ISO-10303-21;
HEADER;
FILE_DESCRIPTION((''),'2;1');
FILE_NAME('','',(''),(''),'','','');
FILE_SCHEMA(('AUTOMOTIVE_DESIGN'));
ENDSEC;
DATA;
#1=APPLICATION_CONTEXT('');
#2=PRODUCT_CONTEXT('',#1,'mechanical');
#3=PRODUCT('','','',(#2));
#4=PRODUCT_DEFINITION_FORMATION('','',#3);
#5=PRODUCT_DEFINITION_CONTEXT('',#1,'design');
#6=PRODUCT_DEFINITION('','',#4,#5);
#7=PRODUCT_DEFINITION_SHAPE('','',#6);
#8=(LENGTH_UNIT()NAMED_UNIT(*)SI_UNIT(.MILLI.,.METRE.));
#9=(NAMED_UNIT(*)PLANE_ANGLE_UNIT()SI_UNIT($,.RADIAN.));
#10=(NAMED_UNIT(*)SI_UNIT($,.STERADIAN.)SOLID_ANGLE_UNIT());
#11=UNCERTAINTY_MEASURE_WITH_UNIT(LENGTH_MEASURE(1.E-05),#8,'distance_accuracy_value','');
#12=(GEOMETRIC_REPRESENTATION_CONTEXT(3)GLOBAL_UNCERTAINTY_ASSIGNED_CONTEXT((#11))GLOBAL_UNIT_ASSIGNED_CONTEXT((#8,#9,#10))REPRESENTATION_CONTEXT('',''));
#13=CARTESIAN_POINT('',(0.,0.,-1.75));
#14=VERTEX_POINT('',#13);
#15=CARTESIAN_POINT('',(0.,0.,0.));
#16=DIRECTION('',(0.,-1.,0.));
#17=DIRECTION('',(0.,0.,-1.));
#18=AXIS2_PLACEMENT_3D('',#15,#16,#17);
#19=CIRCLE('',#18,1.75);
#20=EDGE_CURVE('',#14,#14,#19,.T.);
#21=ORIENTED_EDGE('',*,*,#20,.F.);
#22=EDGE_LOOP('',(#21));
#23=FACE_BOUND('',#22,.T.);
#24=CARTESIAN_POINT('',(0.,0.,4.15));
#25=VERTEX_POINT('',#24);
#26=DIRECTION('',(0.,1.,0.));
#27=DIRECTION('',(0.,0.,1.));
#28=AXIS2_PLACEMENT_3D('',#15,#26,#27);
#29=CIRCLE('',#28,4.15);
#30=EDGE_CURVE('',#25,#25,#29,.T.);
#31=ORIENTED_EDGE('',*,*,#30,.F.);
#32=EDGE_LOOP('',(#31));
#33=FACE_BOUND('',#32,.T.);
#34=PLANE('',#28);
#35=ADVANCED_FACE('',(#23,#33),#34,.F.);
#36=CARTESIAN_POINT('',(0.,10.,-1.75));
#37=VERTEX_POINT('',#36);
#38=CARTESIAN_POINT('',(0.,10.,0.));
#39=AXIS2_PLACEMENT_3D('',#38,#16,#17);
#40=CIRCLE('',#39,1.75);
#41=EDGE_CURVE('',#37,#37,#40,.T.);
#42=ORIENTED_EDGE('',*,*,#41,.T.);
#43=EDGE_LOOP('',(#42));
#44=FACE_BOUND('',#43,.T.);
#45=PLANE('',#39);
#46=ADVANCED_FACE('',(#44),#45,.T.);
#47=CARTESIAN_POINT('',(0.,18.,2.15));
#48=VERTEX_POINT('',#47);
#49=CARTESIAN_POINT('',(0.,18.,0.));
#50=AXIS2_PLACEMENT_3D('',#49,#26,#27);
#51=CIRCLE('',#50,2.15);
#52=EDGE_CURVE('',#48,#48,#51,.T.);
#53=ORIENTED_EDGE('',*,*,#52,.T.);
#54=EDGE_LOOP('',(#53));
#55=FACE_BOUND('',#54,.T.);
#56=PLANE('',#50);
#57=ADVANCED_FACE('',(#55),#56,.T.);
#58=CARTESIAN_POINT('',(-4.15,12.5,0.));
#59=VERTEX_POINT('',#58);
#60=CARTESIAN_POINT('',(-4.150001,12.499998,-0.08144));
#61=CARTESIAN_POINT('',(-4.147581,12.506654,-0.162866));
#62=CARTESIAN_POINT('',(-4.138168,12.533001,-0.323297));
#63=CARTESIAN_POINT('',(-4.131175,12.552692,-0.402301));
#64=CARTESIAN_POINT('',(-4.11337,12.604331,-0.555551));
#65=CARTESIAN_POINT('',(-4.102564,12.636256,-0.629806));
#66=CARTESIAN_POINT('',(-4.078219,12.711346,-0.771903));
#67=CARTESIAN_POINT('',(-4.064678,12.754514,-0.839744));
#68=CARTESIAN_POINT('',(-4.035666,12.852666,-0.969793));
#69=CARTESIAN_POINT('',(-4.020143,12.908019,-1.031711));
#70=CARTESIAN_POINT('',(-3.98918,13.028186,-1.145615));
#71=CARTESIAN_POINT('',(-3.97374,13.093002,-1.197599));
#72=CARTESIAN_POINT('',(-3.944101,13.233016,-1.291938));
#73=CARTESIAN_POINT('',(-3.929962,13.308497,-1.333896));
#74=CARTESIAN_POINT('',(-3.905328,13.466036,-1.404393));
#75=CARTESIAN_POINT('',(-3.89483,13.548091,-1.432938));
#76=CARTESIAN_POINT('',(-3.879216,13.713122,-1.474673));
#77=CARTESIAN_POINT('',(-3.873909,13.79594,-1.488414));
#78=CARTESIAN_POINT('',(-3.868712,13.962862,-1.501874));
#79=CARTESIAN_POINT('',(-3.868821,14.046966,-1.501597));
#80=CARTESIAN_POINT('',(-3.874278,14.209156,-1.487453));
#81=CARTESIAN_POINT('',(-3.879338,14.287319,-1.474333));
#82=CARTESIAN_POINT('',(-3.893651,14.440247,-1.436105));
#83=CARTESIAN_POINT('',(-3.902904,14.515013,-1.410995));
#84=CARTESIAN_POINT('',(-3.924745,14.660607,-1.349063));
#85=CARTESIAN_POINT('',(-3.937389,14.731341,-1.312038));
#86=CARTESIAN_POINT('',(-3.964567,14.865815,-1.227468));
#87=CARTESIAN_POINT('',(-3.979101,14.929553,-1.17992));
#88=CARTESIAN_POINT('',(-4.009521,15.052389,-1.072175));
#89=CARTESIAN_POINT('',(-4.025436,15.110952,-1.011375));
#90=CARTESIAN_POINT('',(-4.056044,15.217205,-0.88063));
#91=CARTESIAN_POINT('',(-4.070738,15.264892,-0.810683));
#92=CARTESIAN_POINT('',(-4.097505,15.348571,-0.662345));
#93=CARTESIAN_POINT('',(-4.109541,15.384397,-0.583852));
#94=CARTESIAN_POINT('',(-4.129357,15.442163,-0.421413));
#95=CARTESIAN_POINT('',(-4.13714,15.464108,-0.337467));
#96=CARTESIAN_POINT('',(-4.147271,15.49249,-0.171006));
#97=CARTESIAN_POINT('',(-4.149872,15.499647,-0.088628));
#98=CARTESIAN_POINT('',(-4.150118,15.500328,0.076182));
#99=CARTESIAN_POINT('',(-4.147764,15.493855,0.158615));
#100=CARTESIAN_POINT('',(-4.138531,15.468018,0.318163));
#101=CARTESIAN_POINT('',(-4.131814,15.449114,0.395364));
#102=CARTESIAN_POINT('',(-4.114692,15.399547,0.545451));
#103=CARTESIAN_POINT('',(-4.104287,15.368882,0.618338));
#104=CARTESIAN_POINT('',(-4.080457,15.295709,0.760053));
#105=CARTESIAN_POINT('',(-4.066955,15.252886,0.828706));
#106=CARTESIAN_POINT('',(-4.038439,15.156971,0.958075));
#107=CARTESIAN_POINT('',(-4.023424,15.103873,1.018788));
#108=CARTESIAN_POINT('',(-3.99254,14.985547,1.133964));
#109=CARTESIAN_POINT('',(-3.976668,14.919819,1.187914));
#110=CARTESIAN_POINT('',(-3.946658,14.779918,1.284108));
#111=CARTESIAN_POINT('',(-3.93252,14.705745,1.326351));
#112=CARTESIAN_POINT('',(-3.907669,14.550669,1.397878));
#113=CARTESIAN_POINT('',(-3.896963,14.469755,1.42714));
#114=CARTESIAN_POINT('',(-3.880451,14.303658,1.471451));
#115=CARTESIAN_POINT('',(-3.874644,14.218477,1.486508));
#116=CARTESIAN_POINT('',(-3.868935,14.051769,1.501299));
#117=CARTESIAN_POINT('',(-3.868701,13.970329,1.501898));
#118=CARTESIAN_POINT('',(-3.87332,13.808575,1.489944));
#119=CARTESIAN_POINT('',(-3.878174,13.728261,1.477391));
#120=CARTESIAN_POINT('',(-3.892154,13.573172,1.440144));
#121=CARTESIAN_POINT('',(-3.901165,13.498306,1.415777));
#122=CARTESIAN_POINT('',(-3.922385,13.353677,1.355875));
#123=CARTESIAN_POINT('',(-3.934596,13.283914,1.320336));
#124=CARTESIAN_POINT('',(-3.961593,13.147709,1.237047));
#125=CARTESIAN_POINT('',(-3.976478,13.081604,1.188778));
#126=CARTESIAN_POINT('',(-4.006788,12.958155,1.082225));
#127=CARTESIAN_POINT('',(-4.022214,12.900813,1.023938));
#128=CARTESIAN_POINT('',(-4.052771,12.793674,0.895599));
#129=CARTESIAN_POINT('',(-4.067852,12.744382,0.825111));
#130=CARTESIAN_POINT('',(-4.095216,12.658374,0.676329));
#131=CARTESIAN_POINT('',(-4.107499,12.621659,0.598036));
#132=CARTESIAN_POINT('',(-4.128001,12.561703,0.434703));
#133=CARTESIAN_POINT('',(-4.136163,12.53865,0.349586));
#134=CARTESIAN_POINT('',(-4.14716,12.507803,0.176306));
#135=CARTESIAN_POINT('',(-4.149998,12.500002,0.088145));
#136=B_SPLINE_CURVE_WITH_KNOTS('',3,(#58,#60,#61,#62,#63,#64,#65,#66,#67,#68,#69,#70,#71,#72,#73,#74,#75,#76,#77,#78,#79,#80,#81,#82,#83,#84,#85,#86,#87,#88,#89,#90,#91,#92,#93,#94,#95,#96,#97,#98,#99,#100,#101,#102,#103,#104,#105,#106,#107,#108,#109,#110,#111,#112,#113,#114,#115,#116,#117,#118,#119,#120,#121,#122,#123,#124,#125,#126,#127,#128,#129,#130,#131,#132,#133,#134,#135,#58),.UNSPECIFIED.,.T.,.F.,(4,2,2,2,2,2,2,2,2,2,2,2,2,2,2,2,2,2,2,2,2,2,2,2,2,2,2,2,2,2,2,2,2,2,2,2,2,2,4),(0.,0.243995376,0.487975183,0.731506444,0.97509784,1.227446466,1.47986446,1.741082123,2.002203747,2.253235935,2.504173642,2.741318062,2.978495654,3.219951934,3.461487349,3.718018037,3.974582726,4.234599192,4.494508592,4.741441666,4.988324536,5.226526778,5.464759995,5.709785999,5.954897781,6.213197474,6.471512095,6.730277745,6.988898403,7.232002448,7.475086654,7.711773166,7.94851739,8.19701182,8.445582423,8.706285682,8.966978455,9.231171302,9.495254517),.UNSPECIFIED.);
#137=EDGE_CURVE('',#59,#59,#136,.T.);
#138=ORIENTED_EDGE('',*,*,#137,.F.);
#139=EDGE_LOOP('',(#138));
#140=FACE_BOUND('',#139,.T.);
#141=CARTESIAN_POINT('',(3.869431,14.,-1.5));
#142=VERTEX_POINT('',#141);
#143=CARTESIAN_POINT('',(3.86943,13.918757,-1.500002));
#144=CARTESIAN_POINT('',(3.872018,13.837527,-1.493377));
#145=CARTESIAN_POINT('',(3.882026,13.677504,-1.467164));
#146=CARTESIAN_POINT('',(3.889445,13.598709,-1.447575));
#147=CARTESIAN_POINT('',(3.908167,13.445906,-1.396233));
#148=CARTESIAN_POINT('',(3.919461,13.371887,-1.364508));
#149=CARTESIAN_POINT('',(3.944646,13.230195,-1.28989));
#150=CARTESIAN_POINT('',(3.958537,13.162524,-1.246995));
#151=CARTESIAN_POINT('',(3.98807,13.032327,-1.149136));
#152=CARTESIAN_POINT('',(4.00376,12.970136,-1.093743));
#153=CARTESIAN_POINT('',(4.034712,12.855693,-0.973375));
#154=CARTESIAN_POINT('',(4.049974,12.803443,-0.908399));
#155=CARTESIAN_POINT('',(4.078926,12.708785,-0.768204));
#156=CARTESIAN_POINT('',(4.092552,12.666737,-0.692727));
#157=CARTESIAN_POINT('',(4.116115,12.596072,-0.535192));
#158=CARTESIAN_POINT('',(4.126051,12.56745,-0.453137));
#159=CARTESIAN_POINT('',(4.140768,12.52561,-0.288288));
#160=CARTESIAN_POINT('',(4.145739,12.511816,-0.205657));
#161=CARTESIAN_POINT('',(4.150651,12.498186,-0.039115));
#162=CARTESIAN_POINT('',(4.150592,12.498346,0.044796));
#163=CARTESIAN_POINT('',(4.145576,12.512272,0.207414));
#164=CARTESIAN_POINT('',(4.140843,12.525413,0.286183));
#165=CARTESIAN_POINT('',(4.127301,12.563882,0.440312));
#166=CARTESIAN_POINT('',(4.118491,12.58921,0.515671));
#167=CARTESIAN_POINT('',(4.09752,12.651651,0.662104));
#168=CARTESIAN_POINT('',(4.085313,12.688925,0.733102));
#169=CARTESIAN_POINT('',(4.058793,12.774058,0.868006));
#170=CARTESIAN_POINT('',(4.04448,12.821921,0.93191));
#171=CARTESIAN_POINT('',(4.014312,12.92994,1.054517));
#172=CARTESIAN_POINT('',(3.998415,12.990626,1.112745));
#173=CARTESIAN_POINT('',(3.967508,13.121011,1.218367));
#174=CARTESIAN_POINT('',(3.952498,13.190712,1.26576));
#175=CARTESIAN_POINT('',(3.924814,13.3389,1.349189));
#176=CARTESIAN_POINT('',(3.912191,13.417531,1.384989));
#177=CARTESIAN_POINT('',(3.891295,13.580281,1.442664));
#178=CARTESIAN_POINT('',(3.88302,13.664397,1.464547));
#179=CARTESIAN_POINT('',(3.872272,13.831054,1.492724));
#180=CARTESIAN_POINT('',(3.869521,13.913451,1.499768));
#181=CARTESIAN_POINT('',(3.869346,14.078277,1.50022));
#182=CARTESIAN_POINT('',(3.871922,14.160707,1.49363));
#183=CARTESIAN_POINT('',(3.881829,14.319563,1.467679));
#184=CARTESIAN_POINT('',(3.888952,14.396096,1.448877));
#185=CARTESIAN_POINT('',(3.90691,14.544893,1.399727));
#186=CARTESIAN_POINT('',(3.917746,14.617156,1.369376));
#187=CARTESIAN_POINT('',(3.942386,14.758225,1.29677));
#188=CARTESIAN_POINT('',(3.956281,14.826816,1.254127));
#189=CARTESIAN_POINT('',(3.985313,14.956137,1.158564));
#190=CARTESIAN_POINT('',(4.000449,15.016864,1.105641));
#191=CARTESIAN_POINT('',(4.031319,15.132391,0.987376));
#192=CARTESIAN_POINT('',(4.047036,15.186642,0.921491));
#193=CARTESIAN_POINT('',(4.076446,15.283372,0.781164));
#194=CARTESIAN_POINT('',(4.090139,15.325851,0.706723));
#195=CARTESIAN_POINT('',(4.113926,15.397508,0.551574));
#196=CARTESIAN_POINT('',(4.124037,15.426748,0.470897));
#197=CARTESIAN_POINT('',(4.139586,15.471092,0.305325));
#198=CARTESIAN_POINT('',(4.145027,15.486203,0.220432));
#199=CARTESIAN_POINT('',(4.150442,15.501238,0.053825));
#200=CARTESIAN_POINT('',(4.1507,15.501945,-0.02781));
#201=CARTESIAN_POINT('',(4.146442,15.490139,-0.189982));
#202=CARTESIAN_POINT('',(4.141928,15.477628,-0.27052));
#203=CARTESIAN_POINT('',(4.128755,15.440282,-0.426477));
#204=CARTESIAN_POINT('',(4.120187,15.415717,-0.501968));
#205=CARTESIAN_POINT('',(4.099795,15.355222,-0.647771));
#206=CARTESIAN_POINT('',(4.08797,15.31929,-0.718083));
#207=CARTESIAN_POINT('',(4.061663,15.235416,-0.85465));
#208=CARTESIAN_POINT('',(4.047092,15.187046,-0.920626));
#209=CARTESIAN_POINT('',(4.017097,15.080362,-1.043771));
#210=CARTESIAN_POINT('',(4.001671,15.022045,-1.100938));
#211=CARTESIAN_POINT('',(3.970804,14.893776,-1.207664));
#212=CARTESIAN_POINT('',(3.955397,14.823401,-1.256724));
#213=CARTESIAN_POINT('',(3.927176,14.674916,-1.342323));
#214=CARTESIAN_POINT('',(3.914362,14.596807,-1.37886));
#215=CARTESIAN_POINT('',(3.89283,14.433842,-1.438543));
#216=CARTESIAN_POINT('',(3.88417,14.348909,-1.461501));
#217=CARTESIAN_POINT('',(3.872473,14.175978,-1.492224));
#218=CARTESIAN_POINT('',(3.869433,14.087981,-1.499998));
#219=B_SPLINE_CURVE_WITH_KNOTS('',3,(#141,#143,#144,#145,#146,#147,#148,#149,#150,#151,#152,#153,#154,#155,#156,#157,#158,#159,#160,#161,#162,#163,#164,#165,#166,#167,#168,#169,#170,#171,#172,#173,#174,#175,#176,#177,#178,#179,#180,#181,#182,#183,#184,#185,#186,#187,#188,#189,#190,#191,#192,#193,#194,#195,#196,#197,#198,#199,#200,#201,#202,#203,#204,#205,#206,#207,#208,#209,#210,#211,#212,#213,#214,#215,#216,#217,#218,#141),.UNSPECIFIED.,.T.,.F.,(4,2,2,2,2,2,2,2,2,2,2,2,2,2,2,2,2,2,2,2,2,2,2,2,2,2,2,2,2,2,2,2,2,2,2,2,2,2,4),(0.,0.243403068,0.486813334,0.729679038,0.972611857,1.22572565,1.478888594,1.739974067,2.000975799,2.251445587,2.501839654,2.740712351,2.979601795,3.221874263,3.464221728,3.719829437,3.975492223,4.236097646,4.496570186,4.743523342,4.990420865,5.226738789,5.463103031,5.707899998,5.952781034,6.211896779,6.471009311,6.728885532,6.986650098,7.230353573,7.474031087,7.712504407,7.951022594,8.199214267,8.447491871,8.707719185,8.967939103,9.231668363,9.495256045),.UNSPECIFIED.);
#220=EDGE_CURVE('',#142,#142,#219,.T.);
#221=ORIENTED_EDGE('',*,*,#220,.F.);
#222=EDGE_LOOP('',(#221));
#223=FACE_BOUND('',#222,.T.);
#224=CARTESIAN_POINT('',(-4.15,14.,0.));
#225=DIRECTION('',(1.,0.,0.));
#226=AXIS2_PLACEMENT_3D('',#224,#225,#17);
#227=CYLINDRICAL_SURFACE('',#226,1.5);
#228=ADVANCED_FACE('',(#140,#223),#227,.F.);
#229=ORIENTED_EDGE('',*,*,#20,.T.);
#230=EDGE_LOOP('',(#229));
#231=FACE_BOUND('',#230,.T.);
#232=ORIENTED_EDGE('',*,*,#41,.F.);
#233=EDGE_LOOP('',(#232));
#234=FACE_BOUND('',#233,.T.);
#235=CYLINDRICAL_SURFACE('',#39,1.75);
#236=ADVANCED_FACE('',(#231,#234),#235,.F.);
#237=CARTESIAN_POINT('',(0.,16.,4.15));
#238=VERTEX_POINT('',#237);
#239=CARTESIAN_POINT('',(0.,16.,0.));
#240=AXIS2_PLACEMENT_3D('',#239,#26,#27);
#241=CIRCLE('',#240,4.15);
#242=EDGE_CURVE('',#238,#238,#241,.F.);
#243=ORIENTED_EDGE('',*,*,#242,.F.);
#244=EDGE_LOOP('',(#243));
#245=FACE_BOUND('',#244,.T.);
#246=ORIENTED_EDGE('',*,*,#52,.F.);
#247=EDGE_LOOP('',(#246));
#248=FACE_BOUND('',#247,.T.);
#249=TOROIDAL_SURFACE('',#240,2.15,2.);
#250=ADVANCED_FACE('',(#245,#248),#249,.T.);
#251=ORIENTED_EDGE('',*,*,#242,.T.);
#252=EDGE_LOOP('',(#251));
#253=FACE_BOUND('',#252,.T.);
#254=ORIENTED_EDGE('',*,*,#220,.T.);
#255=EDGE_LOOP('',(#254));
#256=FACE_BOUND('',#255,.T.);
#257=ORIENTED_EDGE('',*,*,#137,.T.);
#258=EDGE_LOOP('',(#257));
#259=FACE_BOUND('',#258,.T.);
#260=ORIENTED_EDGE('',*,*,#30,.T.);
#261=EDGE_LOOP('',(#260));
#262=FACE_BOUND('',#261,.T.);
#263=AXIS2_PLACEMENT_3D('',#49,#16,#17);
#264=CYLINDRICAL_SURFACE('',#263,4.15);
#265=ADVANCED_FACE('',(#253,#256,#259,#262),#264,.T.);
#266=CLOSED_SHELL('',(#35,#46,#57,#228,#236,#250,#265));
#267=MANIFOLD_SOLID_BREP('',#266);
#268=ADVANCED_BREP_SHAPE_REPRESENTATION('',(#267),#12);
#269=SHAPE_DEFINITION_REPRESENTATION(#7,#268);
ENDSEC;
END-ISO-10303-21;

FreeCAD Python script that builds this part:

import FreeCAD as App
import Part
import Sketcher
Q = App.Units.Quantity


def edges_at(feature, points):
    """Names of the edges that pass closest to the given points."""
    edges = feature.Shape.Edges
    near = lambda p: min(range(len(edges)), key=lambda i: edges[i].distToShape(Part.Vertex(*p))[0])
    return sorted({f"Edge{near(p) + 1}" for p in points})

doc = App.newDocument("Part")
body = doc.addObject("PartDesign::Body", "Body")

# Sketch on XZ plane
sketch1 = body.newObject("Sketcher::SketchObject", "Sketch")
sketch1.AttachmentSupport = (doc.getObject("XZ_Plane"), [""])
sketch1.MapMode = "FlatFace"
sketch1.addGeometry(Part.Circle(App.Vector(0, 0, 0), App.Vector(0, 0, 1), 4.2), False)
sketch1.addConstraint([
    Sketcher.Constraint("Coincident", 0, 3, -1, 1),
    Sketcher.Constraint("Diameter", 0, Q("8.3 mm")),
])
pad1 = body.newObject("PartDesign::Pad", "Pad")
pad1.Profile = sketch1
pad1.Length = 18
pad1.Reversed = True

# Sketch on XZ plane
sketch2 = body.newObject("Sketcher::SketchObject", "Sketch001")
sketch2.AttachmentSupport = (doc.getObject("XZ_Plane"), [""])
sketch2.MapMode = "FlatFace"
sketch2.addGeometry(Part.Circle(App.Vector(0, 0, 0), App.Vector(0, 0, 1), 1.8), False)
sketch2.addConstraint([
    Sketcher.Constraint("Coincident", 0, 3, -1, 1),
    Sketcher.Constraint("Diameter", 0, Q("3.5 mm")),
])
pocket1 = body.newObject("PartDesign::Pocket", "Pocket")
pocket1.Profile = sketch2
pocket1.Length = 10

# Sketch on YZ plane
sketch3 = body.newObject("Sketcher::SketchObject", "Sketch002")
sketch3.AttachmentSupport = (doc.getObject("YZ_Plane"), [""])
sketch3.MapMode = "FlatFace"
sketch3.addGeometry(Part.Circle(App.Vector(14, 0, 0), App.Vector(0, 0, 1), 1.5), False)
sketch3.addConstraint([
    Sketcher.Constraint("PointOnObject", 0, 3, -1),
    Sketcher.Constraint("Diameter", 0, Q("3 mm")),
    Sketcher.Constraint("DistanceX", -1, 1, 0, 3, Q("14 mm")),
])
pocket2 = body.newObject("PartDesign::Pocket", "Pocket001")
pocket2.Profile = sketch3
pocket2.Type = "ThroughAll"
pocket2.Midplane = True
doc.recompute()

fillet = body.newObject("PartDesign::Fillet", "Fillet")
fillet.Base = (pocket2, edges_at(pocket2, [(0, 18, -4.15)]))
fillet.Radius = 2

doc.recompute()
